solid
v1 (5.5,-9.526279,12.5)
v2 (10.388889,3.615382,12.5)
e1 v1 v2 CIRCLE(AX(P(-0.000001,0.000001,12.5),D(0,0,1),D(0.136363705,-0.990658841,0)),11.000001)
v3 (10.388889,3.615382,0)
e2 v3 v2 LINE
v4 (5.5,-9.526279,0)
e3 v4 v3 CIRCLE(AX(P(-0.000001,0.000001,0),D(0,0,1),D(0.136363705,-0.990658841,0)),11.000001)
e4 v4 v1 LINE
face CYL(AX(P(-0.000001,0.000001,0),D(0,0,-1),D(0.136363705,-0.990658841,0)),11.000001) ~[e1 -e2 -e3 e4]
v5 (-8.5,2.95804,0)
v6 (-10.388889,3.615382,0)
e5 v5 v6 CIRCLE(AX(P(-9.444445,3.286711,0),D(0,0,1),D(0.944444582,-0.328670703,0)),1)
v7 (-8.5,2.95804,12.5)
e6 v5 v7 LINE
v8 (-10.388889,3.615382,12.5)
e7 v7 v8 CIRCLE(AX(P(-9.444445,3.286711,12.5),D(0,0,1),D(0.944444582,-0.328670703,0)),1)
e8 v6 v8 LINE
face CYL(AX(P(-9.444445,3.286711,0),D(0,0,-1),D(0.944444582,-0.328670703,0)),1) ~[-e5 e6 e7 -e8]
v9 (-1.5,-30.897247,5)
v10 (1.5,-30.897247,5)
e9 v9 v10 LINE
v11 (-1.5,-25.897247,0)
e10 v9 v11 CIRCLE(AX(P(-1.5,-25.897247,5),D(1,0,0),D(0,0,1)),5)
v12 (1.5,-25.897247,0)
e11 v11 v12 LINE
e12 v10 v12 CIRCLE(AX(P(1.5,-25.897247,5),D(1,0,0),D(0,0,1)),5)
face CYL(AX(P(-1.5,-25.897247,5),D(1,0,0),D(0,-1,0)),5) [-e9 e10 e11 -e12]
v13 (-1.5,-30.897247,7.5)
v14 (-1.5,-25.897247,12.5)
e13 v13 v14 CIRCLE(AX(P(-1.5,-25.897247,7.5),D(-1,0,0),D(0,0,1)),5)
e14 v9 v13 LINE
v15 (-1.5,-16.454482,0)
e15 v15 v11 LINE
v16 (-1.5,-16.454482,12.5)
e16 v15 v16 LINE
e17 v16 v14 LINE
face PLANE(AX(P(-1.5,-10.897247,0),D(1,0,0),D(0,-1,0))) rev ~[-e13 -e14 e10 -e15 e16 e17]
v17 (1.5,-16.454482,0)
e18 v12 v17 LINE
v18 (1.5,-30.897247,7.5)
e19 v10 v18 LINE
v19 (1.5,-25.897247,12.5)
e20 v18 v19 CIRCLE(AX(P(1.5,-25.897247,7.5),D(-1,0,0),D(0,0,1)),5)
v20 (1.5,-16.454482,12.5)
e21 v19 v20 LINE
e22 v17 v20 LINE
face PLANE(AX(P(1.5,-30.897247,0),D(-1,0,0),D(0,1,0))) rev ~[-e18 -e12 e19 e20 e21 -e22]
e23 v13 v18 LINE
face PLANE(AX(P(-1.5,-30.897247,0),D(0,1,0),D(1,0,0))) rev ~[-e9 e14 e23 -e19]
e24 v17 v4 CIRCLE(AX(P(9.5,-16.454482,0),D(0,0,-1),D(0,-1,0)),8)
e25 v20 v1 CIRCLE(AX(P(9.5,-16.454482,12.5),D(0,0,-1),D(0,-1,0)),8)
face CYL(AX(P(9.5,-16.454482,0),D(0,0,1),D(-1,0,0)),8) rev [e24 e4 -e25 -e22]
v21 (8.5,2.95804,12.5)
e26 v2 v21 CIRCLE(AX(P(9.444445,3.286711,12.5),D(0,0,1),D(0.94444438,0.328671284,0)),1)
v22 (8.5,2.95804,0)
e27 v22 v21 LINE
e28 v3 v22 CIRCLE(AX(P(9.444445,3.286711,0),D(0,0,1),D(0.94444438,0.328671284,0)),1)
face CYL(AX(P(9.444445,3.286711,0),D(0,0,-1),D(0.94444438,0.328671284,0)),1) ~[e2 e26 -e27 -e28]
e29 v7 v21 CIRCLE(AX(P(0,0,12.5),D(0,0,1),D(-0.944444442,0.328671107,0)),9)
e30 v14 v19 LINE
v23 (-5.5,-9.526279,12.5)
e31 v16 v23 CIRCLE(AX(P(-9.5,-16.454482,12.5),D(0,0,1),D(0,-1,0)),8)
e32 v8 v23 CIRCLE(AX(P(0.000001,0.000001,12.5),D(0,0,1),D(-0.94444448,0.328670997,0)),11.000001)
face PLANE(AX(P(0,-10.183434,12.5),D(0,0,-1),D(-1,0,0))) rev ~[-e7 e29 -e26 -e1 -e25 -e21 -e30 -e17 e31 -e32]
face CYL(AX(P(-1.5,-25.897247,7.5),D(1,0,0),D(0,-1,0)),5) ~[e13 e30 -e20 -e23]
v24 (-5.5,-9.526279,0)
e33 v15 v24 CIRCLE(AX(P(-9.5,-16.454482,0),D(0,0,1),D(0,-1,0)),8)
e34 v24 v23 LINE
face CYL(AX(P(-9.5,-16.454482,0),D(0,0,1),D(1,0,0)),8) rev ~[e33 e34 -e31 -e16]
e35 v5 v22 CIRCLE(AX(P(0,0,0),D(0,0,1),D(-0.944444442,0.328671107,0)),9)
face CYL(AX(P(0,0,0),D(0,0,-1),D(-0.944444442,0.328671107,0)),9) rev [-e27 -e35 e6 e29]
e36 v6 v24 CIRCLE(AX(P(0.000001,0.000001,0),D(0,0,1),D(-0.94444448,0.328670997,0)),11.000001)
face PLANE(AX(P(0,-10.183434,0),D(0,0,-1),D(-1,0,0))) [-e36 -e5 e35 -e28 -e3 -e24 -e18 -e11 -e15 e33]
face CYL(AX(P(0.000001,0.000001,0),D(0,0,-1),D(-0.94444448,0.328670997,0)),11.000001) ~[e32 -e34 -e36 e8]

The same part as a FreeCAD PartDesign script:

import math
import FreeCAD as App
import Part
import Sketcher
from FreeCAD import Vector
Q = App.Units.Quantity


def edges_at(feature, points):
    """Names of the edges that pass closest to the given points."""
    edges = feature.Shape.Edges
    near = lambda p: min(range(len(edges)), key=lambda i: edges[i].distToShape(Part.Vertex(*p))[0])
    return sorted({f"Edge{near(p) + 1}" for p in points})

doc = App.newDocument("Part")
body = doc.addObject("PartDesign::Body", "Body")

# Sketch on XY plane
sketch1 = body.newObject("Sketcher::SketchObject", "Sketch")
sketch1.AttachmentSupport = (doc.getObject("XY_Plane"), [""])
sketch1.MapMode = "FlatFace"
sketch1.addGeometry(Part.ArcOfCircle(Part.Circle(Vector(0, 0, 0), Vector(0, 0, 1), 9), math.radians(161), math.radians(379)), False)
sketch1.addGeometry(Part.ArcOfCircle(Part.Circle(Vector(-9.4, 3.3, 0), Vector(0, 0, 1), 1), math.radians(-19), math.radians(161)), False)
sketch1.addGeometry(Part.ArcOfCircle(Part.Circle(Vector(0, 0, 0), Vector(0, 0, 1), 11), math.radians(161), math.radians(262)), False)
sketch1.addGeometry(Part.LineSegment(Vector(-1.5, -10.9, 0), Vector(-1.5, -30.9, 0)), False)
sketch1.addGeometry(Part.LineSegment(Vector(-1.5, -30.9, 0), Vector(1.5, -30.9, 0)), False)
sketch1.addGeometry(Part.LineSegment(Vector(1.5, -30.9, 0), Vector(1.5, -10.9, 0)), False)
sketch1.addGeometry(Part.ArcOfCircle(Part.Circle(Vector(0, 0, 0), Vector(0, 0, 1), 11), math.radians(-82), math.radians(19)), False)
sketch1.addGeometry(Part.ArcOfCircle(Part.Circle(Vector(9.4, 3.3, 0), Vector(0, 0, 1), 1), math.radians(19), math.radians(199)), False)
sketch1.addConstraint(Sketcher.Constraint("Tangent", 0, 1, 1, 1))
sketch1.addConstraint(Sketcher.Constraint("Tangent", 1, 2, 2, 1))
sketch1.addConstraint(Sketcher.Constraint("Coincident", 2, 2, 3, 1))
sketch1.addConstraint(Sketcher.Constraint("Coincident", 3, 2, 4, 1))
sketch1.addConstraint(Sketcher.Constraint("Coincident", 4, 2, 5, 1))
sketch1.addConstraint(Sketcher.Constraint("Coincident", 5, 2, 6, 1))
sketch1.addConstraint(Sketcher.Constraint("Tangent", 6, 2, 7, 1))
sketch1.addConstraint(Sketcher.Constraint("Tangent", 7, 2, 0, 2))
sketch1.addConstraint(Sketcher.Constraint("Vertical", 3))
sketch1.addConstraint(Sketcher.Constraint("Horizontal", 4))
sketch1.addConstraint(Sketcher.Constraint("Vertical", 5))
sketch1.addConstraint(Sketcher.Constraint("Coincident", 0, 3, -1, 1))
sketch1.addConstraint(Sketcher.Constraint("Coincident", 2, 3, -1, 1))
sketch1.addConstraint(Sketcher.Constraint("Coincident", 6, 3, -1, 1))
sketch1.addConstraint(Sketcher.Constraint("Equal", 2, 6))
sketch1.addConstraint(Sketcher.Constraint("Horizontal", 1, 3, 7, 3))
sketch1.addConstraint(Sketcher.Constraint("Horizontal", 2, 2, 5, 2))
sketch1.addConstraint(Sketcher.Constraint("Radius", 0, Q("9 mm")))
sketch1.addConstraint(Sketcher.Constraint("Radius", 1, Q("1 mm")))
sketch1.addConstraint(Sketcher.Constraint("DistanceX", 4, 1, 4, 2, Q("3 mm")))
sketch1.addConstraint(Sketcher.Constraint("DistanceY", 3, 2, 3, 1, Q("20 mm")))
sketch1.addConstraint(Sketcher.Constraint("DistanceX", 0, 1, 2, 2, Q("7 mm")))
pad1 = body.newObject("PartDesign::Pad", "Pad")
pad1.Profile = sketch1
pad1.Length = 12.5
doc.recompute()

fillet = body.newObject("PartDesign::Fillet", "Fillet")
fillet.Base = (pad1, edges_at(pad1, [(0, -30.897, 0), (0, -30.897, 12.5)]))
fillet.Radius = 5
doc.recompute()

fillet2 = body.newObject("PartDesign::Fillet", "Fillet001")
fillet2.Base = (fillet, edges_at(fillet, [(1.5, -10.897, 6.25), (-1.5, -10.897, 6.25)]))
fillet2.Radius = 8

doc.recompute()
